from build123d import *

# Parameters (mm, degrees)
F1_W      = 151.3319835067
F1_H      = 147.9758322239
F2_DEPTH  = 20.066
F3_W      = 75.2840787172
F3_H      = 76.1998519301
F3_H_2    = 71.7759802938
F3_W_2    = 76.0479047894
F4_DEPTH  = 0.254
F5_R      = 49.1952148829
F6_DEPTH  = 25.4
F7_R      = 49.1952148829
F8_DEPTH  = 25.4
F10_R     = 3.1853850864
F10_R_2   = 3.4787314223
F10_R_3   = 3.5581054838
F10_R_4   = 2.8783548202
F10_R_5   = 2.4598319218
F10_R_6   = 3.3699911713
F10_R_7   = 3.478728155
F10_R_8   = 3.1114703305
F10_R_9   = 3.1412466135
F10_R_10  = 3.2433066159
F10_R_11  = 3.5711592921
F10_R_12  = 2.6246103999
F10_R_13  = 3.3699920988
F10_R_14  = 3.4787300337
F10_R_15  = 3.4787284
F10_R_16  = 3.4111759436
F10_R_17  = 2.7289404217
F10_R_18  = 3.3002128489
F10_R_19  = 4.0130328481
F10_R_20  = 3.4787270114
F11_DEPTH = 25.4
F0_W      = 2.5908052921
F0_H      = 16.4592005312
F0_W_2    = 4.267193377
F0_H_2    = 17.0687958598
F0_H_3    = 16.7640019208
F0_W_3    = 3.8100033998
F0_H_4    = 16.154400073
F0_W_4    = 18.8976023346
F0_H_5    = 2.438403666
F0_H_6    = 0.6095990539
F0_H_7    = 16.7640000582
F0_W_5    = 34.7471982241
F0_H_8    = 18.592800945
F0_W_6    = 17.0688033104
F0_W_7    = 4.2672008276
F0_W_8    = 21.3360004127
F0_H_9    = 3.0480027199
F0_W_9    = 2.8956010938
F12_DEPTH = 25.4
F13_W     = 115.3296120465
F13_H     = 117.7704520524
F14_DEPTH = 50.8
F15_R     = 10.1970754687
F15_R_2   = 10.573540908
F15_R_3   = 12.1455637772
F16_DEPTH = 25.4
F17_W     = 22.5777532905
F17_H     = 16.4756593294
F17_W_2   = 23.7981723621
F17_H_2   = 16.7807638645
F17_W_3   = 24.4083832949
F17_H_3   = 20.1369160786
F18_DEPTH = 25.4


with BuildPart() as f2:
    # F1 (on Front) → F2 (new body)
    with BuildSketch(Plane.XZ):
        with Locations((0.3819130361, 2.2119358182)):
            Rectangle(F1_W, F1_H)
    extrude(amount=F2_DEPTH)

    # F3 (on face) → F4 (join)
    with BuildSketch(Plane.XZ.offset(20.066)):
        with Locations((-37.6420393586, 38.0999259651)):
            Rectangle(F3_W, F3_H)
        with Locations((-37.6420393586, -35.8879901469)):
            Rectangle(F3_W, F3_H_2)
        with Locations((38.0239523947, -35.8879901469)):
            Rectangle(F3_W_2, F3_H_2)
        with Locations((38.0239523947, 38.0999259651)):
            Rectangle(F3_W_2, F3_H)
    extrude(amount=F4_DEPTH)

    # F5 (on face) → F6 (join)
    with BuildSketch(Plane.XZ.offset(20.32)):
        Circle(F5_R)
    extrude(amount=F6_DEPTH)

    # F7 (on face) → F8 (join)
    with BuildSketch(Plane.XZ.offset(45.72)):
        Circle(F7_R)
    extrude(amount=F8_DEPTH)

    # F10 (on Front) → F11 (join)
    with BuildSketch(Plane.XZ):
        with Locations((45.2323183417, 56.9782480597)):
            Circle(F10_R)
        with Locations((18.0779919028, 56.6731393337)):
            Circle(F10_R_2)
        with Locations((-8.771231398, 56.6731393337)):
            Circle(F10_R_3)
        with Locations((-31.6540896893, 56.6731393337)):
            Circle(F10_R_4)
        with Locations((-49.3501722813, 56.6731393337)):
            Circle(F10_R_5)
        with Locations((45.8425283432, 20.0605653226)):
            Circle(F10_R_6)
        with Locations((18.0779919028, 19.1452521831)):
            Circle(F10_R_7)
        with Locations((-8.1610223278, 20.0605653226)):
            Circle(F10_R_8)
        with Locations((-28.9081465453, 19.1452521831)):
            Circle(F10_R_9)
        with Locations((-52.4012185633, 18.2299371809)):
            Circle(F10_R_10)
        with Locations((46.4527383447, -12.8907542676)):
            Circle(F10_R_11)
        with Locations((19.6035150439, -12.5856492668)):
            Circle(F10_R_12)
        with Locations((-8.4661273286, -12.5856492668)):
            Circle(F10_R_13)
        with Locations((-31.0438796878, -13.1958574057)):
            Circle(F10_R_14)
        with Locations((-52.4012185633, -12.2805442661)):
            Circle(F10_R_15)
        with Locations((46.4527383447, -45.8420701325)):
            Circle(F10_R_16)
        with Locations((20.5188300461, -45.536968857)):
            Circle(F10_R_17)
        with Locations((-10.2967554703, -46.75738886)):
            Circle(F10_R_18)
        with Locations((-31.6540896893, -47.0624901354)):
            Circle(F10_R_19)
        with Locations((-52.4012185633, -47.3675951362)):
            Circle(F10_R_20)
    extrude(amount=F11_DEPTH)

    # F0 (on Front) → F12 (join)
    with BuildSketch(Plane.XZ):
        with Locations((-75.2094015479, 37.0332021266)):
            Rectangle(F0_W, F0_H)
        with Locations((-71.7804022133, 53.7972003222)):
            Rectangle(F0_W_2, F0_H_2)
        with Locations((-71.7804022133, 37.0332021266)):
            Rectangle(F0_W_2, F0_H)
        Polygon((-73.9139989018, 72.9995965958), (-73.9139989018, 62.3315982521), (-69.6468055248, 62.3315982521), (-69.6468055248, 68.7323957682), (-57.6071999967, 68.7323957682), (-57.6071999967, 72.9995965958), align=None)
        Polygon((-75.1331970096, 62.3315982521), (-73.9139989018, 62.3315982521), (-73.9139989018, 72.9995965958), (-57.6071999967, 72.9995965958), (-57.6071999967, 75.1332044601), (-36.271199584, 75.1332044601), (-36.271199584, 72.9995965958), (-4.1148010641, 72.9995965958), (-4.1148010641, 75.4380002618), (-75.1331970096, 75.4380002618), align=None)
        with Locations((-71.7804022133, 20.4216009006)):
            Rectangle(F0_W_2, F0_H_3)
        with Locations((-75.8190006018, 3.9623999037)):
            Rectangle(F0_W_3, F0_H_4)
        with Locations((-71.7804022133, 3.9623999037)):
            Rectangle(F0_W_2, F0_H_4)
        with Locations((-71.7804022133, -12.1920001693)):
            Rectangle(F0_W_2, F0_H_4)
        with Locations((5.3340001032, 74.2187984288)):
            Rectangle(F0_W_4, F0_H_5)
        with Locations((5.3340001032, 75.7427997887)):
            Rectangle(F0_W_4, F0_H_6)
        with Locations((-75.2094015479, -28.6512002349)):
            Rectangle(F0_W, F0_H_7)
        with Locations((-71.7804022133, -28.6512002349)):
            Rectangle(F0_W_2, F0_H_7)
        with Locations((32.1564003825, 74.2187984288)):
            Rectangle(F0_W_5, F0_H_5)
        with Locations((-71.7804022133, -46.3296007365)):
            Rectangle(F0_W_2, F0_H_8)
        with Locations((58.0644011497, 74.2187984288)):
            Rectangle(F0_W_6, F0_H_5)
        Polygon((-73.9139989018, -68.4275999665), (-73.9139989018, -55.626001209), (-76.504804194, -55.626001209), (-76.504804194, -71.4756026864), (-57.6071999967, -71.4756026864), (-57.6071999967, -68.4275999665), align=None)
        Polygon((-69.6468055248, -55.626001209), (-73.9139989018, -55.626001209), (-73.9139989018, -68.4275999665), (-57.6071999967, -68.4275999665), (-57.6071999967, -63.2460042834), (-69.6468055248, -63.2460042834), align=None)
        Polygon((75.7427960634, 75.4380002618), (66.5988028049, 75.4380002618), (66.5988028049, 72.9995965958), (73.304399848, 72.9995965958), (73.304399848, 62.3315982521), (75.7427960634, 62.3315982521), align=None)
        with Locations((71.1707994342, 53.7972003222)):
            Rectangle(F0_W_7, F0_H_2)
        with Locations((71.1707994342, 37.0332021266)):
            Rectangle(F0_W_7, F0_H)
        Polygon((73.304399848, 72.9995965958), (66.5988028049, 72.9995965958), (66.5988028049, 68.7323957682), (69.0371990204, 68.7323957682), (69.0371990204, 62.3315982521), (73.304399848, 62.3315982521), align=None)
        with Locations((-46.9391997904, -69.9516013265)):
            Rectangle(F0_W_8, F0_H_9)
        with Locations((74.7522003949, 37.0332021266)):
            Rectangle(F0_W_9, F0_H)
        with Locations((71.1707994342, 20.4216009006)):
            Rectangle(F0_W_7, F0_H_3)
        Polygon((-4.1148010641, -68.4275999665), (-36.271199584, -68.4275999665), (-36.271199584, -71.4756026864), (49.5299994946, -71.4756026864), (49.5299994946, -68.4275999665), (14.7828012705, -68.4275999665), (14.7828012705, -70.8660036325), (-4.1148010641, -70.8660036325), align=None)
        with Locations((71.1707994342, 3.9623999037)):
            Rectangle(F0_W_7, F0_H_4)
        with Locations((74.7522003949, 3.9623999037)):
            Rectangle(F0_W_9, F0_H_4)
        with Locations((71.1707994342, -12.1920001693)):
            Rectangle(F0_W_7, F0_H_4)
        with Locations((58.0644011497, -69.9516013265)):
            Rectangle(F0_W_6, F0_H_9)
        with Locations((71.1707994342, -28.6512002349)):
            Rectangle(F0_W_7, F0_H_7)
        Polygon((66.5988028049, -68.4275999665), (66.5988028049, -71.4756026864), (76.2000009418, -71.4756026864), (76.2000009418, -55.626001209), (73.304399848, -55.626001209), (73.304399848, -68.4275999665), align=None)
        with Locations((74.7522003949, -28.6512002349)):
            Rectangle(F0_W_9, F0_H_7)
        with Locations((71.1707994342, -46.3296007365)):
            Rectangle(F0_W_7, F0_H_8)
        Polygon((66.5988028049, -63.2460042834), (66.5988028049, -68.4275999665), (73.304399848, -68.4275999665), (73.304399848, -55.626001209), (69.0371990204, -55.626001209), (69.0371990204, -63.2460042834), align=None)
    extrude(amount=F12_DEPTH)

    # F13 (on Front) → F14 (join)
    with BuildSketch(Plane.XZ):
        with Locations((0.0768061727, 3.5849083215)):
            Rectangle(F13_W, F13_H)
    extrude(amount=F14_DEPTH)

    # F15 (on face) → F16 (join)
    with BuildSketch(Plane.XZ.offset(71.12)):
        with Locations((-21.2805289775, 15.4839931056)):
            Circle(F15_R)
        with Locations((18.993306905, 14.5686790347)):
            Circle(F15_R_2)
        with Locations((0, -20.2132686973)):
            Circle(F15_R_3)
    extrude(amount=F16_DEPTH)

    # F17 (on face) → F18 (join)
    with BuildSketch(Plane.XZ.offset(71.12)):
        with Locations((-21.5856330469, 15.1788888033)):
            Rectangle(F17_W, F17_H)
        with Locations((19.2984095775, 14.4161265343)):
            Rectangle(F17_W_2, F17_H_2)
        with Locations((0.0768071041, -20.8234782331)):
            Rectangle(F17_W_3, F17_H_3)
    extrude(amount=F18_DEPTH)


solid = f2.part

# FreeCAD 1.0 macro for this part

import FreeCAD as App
import Part
import Sketcher
Q = App.Units.Quantity

doc = App.newDocument("Part")
body = doc.addObject("PartDesign::Body", "Body")

# Sketch on XZ plane
sketch1 = doc.addObject("Sketcher::SketchObject", "Sketch")
body.addObject(sketch1)
sketch1.AttachmentSupport = (doc.XZ_Plane, [""])
sketch1.MapMode = "FlatFace"
sketch1.addGeometry([
    Part.LineSegment(App.Vector(-75.284079, 76.199852, 0), App.Vector(-75.284079, -71.77598, 0)),
    Part.LineSegment(App.Vector(-75.284079, -71.77598, 0), App.Vector(76.047905, -71.77598, 0)),
    Part.LineSegment(App.Vector(76.047905, -71.77598, 0), App.Vector(76.047905, 76.199852, 0)),
    Part.LineSegment(App.Vector(76.047905, 76.199852, 0), App.Vector(-75.284079, 76.199852, 0)),
], False)
sketch1.addConstraint([
    Sketcher.Constraint("Coincident", 0, 2, 1, 1),
    Sketcher.Constraint("Coincident", 1, 2, 2, 1),
    Sketcher.Constraint("Coincident", 2, 2, 3, 1),
    Sketcher.Constraint("Coincident", 3, 2, 0, 1),
    Sketcher.Constraint("Vertical", 0),
    Sketcher.Constraint("Horizontal", 1),
    Sketcher.Constraint("Vertical", 2),
    Sketcher.Constraint("Horizontal", 3),
    Sketcher.Constraint("DistanceX", 1, 1, 1, 2, 151.331984),
    Sketcher.Constraint("DistanceY", 0, 2, 0, 1, 147.975832),
    Sketcher.Constraint("DistanceX", 0, 2, -1, 1, 75.284079),
    Sketcher.Constraint("DistanceY", 0, 2, -1, 1, 71.77598),
])
pad1 = doc.addObject("PartDesign::Pad", "Pad")
body.addObject(pad1)
pad1.Profile = sketch1
pad1.Length = Q("0.79 in")

# Sketch on XZ plane
sketch2 = doc.addObject("Sketcher::SketchObject", "Sketch001")
body.addObject(sketch2)
sketch2.AttachmentSupport = (doc.XZ_Plane, [""])
sketch2.MapMode = "FlatFace"
sketch2.AttachmentOffset = App.Placement(App.Vector(0, 0, 0.79 * 25.4), App.Rotation())
sketch2.addGeometry([
    Part.LineSegment(App.Vector(-75.284079, 76.199852, 0), App.Vector(-75.284079, -71.77598, 0)),
    Part.LineSegment(App.Vector(-75.284079, -71.77598, 0), App.Vector(76.047905, -71.77598, 0)),
    Part.LineSegment(App.Vector(76.047905, -71.77598, 0), App.Vector(76.047905, 76.199852, 0)),
    Part.LineSegment(App.Vector(76.047905, 76.199852, 0), App.Vector(-75.284079, 76.199852, 0)),
], False)
sketch2.addConstraint([
    Sketcher.Constraint("Coincident", 0, 2, 1, 1),
    Sketcher.Constraint("Coincident", 1, 2, 2, 1),
    Sketcher.Constraint("Coincident", 2, 2, 3, 1),
    Sketcher.Constraint("Coincident", 3, 2, 0, 1),
    Sketcher.Constraint("Vertical", 0),
    Sketcher.Constraint("Horizontal", 1),
    Sketcher.Constraint("Vertical", 2),
    Sketcher.Constraint("Horizontal", 3),
    Sketcher.Constraint("DistanceX", 1, 1, 1, 2, 151.331984),
    Sketcher.Constraint("DistanceY", 0, 2, 0, 1, 147.975832),
    Sketcher.Constraint("DistanceX", 0, 2, -1, 1, 75.284079),
    Sketcher.Constraint("DistanceY", 0, 2, -1, 1, 71.77598),
])
pad2 = doc.addObject("PartDesign::Pad", "Pad001")
body.addObject(pad2)
pad2.Profile = sketch2
pad2.Length = Q("0.01 in")

# Sketch on XZ plane
sketch3 = doc.addObject("Sketcher::SketchObject", "Sketch002")
body.addObject(sketch3)
sketch3.AttachmentSupport = (doc.XZ_Plane, [""])
sketch3.MapMode = "FlatFace"
sketch3.AttachmentOffset = App.Placement(App.Vector(0, 0, 0.8 * 25.4), App.Rotation())
sketch3.addGeometry(Part.Circle(App.Vector(0, 0, 0), App.Vector(0, 0, 1), 49.195215), False)
sketch3.addConstraint([
    Sketcher.Constraint("Coincident", 0, 3, -1, 1),
    Sketcher.Constraint("Diameter", 0, 98.39043),
])
pad3 = doc.addObject("PartDesign::Pad", "Pad002")
body.addObject(pad3)
pad3.Profile = sketch3
pad3.Length = Q("1 in")

# Sketch on XZ plane
sketch4 = doc.addObject("Sketcher::SketchObject", "Sketch003")
body.addObject(sketch4)
sketch4.AttachmentSupport = (doc.XZ_Plane, [""])
sketch4.MapMode = "FlatFace"
sketch4.AttachmentOffset = App.Placement(App.Vector(0, 0, 1.8 * 25.4), App.Rotation())
sketch4.addGeometry(Part.Circle(App.Vector(0, 0, 0), App.Vector(0, 0, 1), 49.195215), False)
sketch4.addConstraint([
    Sketcher.Constraint("Coincident", 0, 3, -1, 1),
    Sketcher.Constraint("Diameter", 0, 98.39043),
])
pad4 = doc.addObject("PartDesign::Pad", "Pad003")
body.addObject(pad4)
pad4.Profile = sketch4
pad4.Length = Q("1 in")

# Sketch on XZ plane
sketch5 = doc.addObject("Sketcher::SketchObject", "Sketch004")
body.addObject(sketch5)
sketch5.AttachmentSupport = (doc.XZ_Plane, [""])
sketch5.MapMode = "FlatFace"
sketch5.addGeometry([
    Part.Circle(App.Vector(45.232318, 56.978248, 0), App.Vector(0, 0, 1), 3.185385),  # 0
    Part.Circle(App.Vector(18.077992, 56.673139, 0), App.Vector(0, 0, 1), 3.478731),  # 1
    Part.Circle(App.Vector(-8.771231, 56.673139, 0), App.Vector(0, 0, 1), 3.558105),  # 2
    Part.Circle(App.Vector(-31.65409, 56.673139, 0), App.Vector(0, 0, 1), 2.878355),  # 3
    Part.Circle(App.Vector(-49.350172, 56.673139, 0), App.Vector(0, 0, 1), 2.459832),  # 4
    Part.Circle(App.Vector(45.842528, 20.060565, 0), App.Vector(0, 0, 1), 3.369991),  # 5
    Part.Circle(App.Vector(18.077992, 19.145252, 0), App.Vector(0, 0, 1), 3.478728),  # 6
    Part.Circle(App.Vector(-8.161022, 20.060565, 0), App.Vector(0, 0, 1), 3.11147),  # 7
    Part.Circle(App.Vector(-28.908147, 19.145252, 0), App.Vector(0, 0, 1), 3.141247),  # 8
    Part.Circle(App.Vector(-52.401219, 18.229937, 0), App.Vector(0, 0, 1), 3.243307),  # 9
    Part.Circle(App.Vector(46.452738, -12.890754, 0), App.Vector(0, 0, 1), 3.571159),  # 10
    Part.Circle(App.Vector(19.603515, -12.585649, 0), App.Vector(0, 0, 1), 2.62461),  # 11
    Part.Circle(App.Vector(-8.466127, -12.585649, 0), App.Vector(0, 0, 1), 3.369992),  # 12
    Part.Circle(App.Vector(-31.04388, -13.195857, 0), App.Vector(0, 0, 1), 3.47873),  # 13
    Part.Circle(App.Vector(-52.401219, -12.280544, 0), App.Vector(0, 0, 1), 3.478728),  # 14
    Part.Circle(App.Vector(46.452738, -45.84207, 0), App.Vector(0, 0, 1), 3.411176),  # 15
    Part.Circle(App.Vector(20.51883, -45.536969, 0), App.Vector(0, 0, 1), 2.72894),  # 16
    Part.Circle(App.Vector(-10.296755, -46.757389, 0), App.Vector(0, 0, 1), 3.300213),  # 17
    Part.Circle(App.Vector(-31.65409, -47.06249, 0), App.Vector(0, 0, 1), 4.013033),  # 18
    Part.Circle(App.Vector(-52.401219, -47.367595, 0), App.Vector(0, 0, 1), 3.478727),  # 19
], False)
sketch5.addConstraint([
    Sketcher.Constraint("Equal", 5, 12),
    Sketcher.Constraint("Equal", 6, 13),
    Sketcher.Constraint("Equal", 13, 14),
    Sketcher.Constraint("Equal", 14, 19),
    Sketcher.Constraint("Horizontal", 1, 3, 2, 3),
    Sketcher.Constraint("Horizontal", 2, 3, 3, 3),
    Sketcher.Constraint("Horizontal", 3, 3, 4, 3),
    Sketcher.Constraint("Horizontal", 5, 3, 7, 3),
    Sketcher.Constraint("Horizontal", 6, 3, 8, 3),
    Sketcher.Constraint("Horizontal", 11, 3, 12, 3),
    Sketcher.Constraint("Vertical", 1, 3, 6, 3),
    Sketcher.Constraint("Vertical", 9, 3, 14, 3),
    Sketcher.Constraint("Vertical", 10, 3, 15, 3),
    Sketcher.Constraint("Vertical", 3, 3, 18, 3),
    Sketcher.Constraint("Vertical", 14, 3, 19, 3),
    Sketcher.Constraint("Diameter", 0, 6.37077),
    Sketcher.Constraint("Diameter", 2, 7.116211),
    Sketcher.Constraint("Diameter", 3, 5.75671),
    Sketcher.Constraint("Diameter", 7, 6.222941),
    Sketcher.Constraint("Diameter", 10, 7.142319),
    Sketcher.Constraint("Diameter", 11, 5.249221),
    Sketcher.Constraint("Diameter", 13, 6.95746),
    Sketcher.Constraint("Diameter", 15, 6.822352),
    Sketcher.Constraint("Diameter", 16, 5.457881),
    Sketcher.Constraint("Diameter", 1, 6.957463),
    Sketcher.Constraint("Diameter", 4, 4.919664),
    Sketcher.Constraint("Diameter", 5, 6.739982),
    Sketcher.Constraint("Diameter", 8, 6.282493),
    Sketcher.Constraint("Diameter", 9, 6.486613),
    Sketcher.Constraint("Diameter", 17, 6.600426),
    Sketcher.Constraint("Diameter", 18, 8.026066),
    Sketcher.Constraint("DistanceX", -1, 1, 0, 3, Q("1.7807999 in")),
    Sketcher.Constraint("DistanceX", 7, 3, -1, 1, Q("0.3213001 in")),
    Sketcher.Constraint("DistanceX", 13, 3, -1, 1, Q("1.2222 in")),
    Sketcher.Constraint("DistanceX", 3, 3, 2, 3, Q("0.9008999 in")),
    Sketcher.Constraint("DistanceY", 14, 3, 9, 3, Q("1.2012001 in")),
    Sketcher.Constraint("DistanceX", 4, 3, 5, 3, 95.192701),
    Sketcher.Constraint("DistanceY", 11, 3, 6, 3, 31.730901),
    Sketcher.Constraint("DistanceY", 15, 3, 16, 3, 0.305101),
    Sketcher.Constraint("DistanceY", 18, 3, 17, 3, 0.305101),
    Sketcher.Constraint("DistanceY", -1, 1, 0, 3, 56.978248),
    Sketcher.Constraint("DistanceX", -1, 1, 1, 3, 18.077992),
    Sketcher.Constraint("DistanceY", -1, 1, 1, 3, 56.673139),
    Sketcher.Constraint("DistanceX", 2, 3, -1, 1, 8.771231),
    Sketcher.Constraint("DistanceX", -1, 1, 5, 3, 45.842528),
    Sketcher.Constraint("DistanceX", 9, 3, -1, 1, 52.401219),
    Sketcher.Constraint("DistanceX", -1, 1, 10, 3, 46.452738),
    Sketcher.Constraint("DistanceY", 11, 3, -1, 1, 12.585649),
    Sketcher.Constraint("DistanceY", 15, 3, -1, 1, 45.84207),
    Sketcher.Constraint("DistanceX", -1, 1, 16, 3, 20.51883),
    Sketcher.Constraint("DistanceY", 17, 3, -1, 1, 46.757389),
    Sketcher.Constraint("DistanceX", 8, 3, 6, 3, 46.986138),
    Sketcher.Constraint("DistanceY", 9, 3, 7, 3, 1.830628),
    Sketcher.Constraint("DistanceY", 10, 3, 5, 3, 32.95132),
    Sketcher.Constraint("DistanceX", 8, 3, 11, 3, 48.511662),
    Sketcher.Constraint("DistanceX", 8, 3, 12, 3, 20.442019),
    Sketcher.Constraint("DistanceY", 13, 3, 12, 3, 0.610208),
    Sketcher.Constraint("DistanceX", 17, 3, 12, 3, 1.830628),
    Sketcher.Constraint("DistanceY", 19, 3, 14, 3, 35.087051),
    Sketcher.Constraint("DistanceY", -1, 1, 5, 3, 20.060565),
])
pad5 = doc.addObject("PartDesign::Pad", "Pad004")
body.addObject(pad5)
pad5.Profile = sketch5
pad5.Length = Q("1 in")

# Sketch on XZ plane
sketch6 = doc.addObject("Sketcher::SketchObject", "Sketch005")
body.addObject(sketch6)
sketch6.AttachmentSupport = (doc.XZ_Plane, [""])
sketch6.MapMode = "FlatFace"
sketch6.addGeometry([
    Part.LineSegment(App.Vector(76.200001, -55.626001, 0), App.Vector(73.3044, -55.626001, 0)),  # 0
    Part.LineSegment(App.Vector(73.3044, -55.626001, 0), App.Vector(73.3044, -37.0332, 0)),  # 1
    Part.LineSegment(App.Vector(73.3044, -37.0332, 0), App.Vector(76.200001, -37.0332, 0)),  # 2
    Part.LineSegment(App.Vector(76.200001, -37.0332, 0), App.Vector(76.200001, -20.2692, 0)),  # 3
    Part.LineSegment(App.Vector(76.200001, -20.2692, 0), App.Vector(73.3044, -20.2692, 0)),  # 4
    Part.LineSegment(App.Vector(73.3044, -20.2692, 0), App.Vector(73.3044, -4.1148, 0)),  # 5
    Part.LineSegment(App.Vector(73.3044, -4.1148, 0), App.Vector(76.200001, -4.1148, 0)),  # 6
    Part.LineSegment(App.Vector(76.200001, -4.1148, 0), App.Vector(76.200001, 12.0396, 0)),  # 7
    Part.LineSegment(App.Vector(76.200001, 12.0396, 0), App.Vector(73.3044, 12.0396, 0)),  # 8
    Part.LineSegment(App.Vector(73.3044, 12.0396, 0), App.Vector(73.3044, 28.803602, 0)),  # 9
    Part.LineSegment(App.Vector(73.3044, 28.803602, 0), App.Vector(76.200001, 28.803602, 0)),  # 10
    Part.LineSegment(App.Vector(76.200001, 28.803602, 0), App.Vector(76.200001, 45.262802, 0)),  # 11
    Part.LineSegment(App.Vector(76.200001, 45.262802, 0), App.Vector(73.3044, 45.262802, 0)),  # 12
    Part.LineSegment(App.Vector(73.3044, 45.262802, 0), App.Vector(73.3044, 62.331598, 0)),  # 13
    Part.LineSegment(App.Vector(73.3044, 62.331598, 0), App.Vector(75.742796, 62.331598, 0)),  # 14
    Part.LineSegment(App.Vector(75.742796, 62.331598, 0), App.Vector(75.742796, 75.438, 0)),  # 15
    Part.LineSegment(App.Vector(75.742796, 75.438, 0), App.Vector(14.782801, 75.438, 0)),  # 16
    Part.LineSegment(App.Vector(14.782801, 75.438, 0), App.Vector(14.782801, 76.047599, 0)),  # 17
    Part.LineSegment(App.Vector(14.782801, 76.047599, 0), App.Vector(-4.114801, 76.047599, 0)),  # 18
    Part.LineSegment(App.Vector(-4.114801, 76.047599, 0), App.Vector(-4.114801, 75.438, 0)),  # 19
    Part.LineSegment(App.Vector(-4.114801, 75.438, 0), App.Vector(-75.133197, 75.438, 0)),  # 20
    Part.LineSegment(App.Vector(-75.133197, 75.438, 0), App.Vector(-75.133197, 62.331598, 0)),  # 21
    Part.LineSegment(App.Vector(-75.133197, 62.331598, 0), App.Vector(-73.913999, 62.331598, 0)),  # 22
    Part.LineSegment(App.Vector(-73.913999, 62.331598, 0), App.Vector(-73.913999, 45.262802, 0)),  # 23
    Part.LineSegment(App.Vector(-73.913999, 45.262802, 0), App.Vector(-76.504804, 45.262802, 0)),  # 24
    Part.LineSegment(App.Vector(-76.504804, 45.262802, 0), App.Vector(-76.504804, 28.803602, 0)),  # 25
    Part.LineSegment(App.Vector(-76.504804, 28.803602, 0), App.Vector(-73.913999, 28.803602, 0)),  # 26
    Part.LineSegment(App.Vector(-73.913999, 28.803602, 0), App.Vector(-73.913999, 12.0396, 0)),  # 27
    Part.LineSegment(App.Vector(-73.913999, 12.0396, 0), App.Vector(-77.724002, 12.0396, 0)),  # 28
    Part.LineSegment(App.Vector(-77.724002, 12.0396, 0), App.Vector(-77.724002, -4.1148, 0)),  # 29
    Part.LineSegment(App.Vector(-77.724002, -4.1148, 0), App.Vector(-73.913999, -4.1148, 0)),  # 30
    Part.LineSegment(App.Vector(-73.913999, -4.1148, 0), App.Vector(-73.913999, -20.2692, 0)),  # 31
    Part.LineSegment(App.Vector(-73.913999, -20.2692, 0), App.Vector(-76.504804, -20.2692, 0)),  # 32
    Part.LineSegment(App.Vector(-76.504804, -20.2692, 0), App.Vector(-76.504804, -37.0332, 0)),  # 33
    Part.LineSegment(App.Vector(-76.504804, -37.0332, 0), App.Vector(-73.913999, -37.0332, 0)),  # 34
    Part.LineSegment(App.Vector(-73.913999, -37.0332, 0), App.Vector(-73.913999, -55.626001, 0)),  # 35
    Part.LineSegment(App.Vector(-73.913999, -55.626001, 0), App.Vector(-76.504804, -55.626001, 0)),  # 36
    Part.LineSegment(App.Vector(-76.504804, -55.626001, 0), App.Vector(-76.504804, -71.475603, 0)),  # 37
    Part.LineSegment(App.Vector(-76.504804, -71.475603, 0), App.Vector(76.200001, -71.475603, 0)),  # 38
    Part.LineSegment(App.Vector(76.200001, -71.475603, 0), App.Vector(76.200001, -55.626001, 0)),  # 39
    Part.LineSegment(App.Vector(69.037199, 68.732396, 0), App.Vector(69.037199, -63.246004, 0)),  # 40
    Part.LineSegment(App.Vector(69.037199, -63.246004, 0), App.Vector(66.598803, -63.246004, 0)),  # 41
    Part.LineSegment(App.Vector(66.598803, -63.246004, 0), App.Vector(66.598803, -68.4276, 0)),  # 42
    Part.LineSegment(App.Vector(66.598803, -68.4276, 0), App.Vector(14.782801, -68.4276, 0)),  # 43
    Part.LineSegment(App.Vector(14.782801, -68.4276, 0), App.Vector(14.782801, -70.866004, 0)),  # 44
    Part.LineSegment(App.Vector(14.782801, -70.866004, 0), App.Vector(-4.114801, -70.866004, 0)),  # 45
    Part.LineSegment(App.Vector(-4.114801, -70.866004, 0), App.Vector(-4.114801, -68.4276, 0)),  # 46
    Part.LineSegment(App.Vector(-4.114801, -68.4276, 0), App.Vector(-57.6072, -68.4276, 0)),  # 47
    Part.LineSegment(App.Vector(-57.6072, -68.4276, 0), App.Vector(-57.6072, -63.246004, 0)),  # 48
    Part.LineSegment(App.Vector(-57.6072, -63.246004, 0), App.Vector(-69.646806, -63.246004, 0)),  # 49
    Part.LineSegment(App.Vector(-69.646806, -63.246004, 0), App.Vector(-69.646806, 68.732396, 0)),  # 50
    Part.LineSegment(App.Vector(-69.646806, 68.732396, 0), App.Vector(-57.6072, 68.732396, 0)),  # 51
    Part.LineSegment(App.Vector(-57.6072, 68.732396, 0), App.Vector(-57.6072, 75.133204, 0)),  # 52
    Part.LineSegment(App.Vector(-57.6072, 75.133204, 0), App.Vector(-36.2712, 75.133204, 0)),  # 53
    Part.LineSegment(App.Vector(-36.2712, 75.133204, 0), App.Vector(-36.2712, 72.999597, 0)),  # 54
    Part.LineSegment(App.Vector(-36.2712, 72.999597, 0), App.Vector(66.598803, 72.999597, 0)),  # 55
    Part.LineSegment(App.Vector(66.598803, 72.999597, 0), App.Vector(66.598803, 68.732396, 0)),  # 56
    Part.LineSegment(App.Vector(66.598803, 68.732396, 0), App.Vector(69.037199, 68.732396, 0)),  # 57
], False)
sketch6.addConstraint([
    Sketcher.Constraint("Coincident", 0, 2, 1, 1),
    Sketcher.Constraint("Coincident", 1, 2, 2, 1),
    Sketcher.Constraint("Coincident", 2, 2, 3, 1),
    Sketcher.Constraint("Coincident", 3, 2, 4, 1),
    Sketcher.Constraint("Coincident", 4, 2, 5, 1),
    Sketcher.Constraint("Coincident", 5, 2, 6, 1),
    Sketcher.Constraint("Coincident", 6, 2, 7, 1),
    Sketcher.Constraint("Coincident", 7, 2, 8, 1),
    Sketcher.Constraint("Coincident", 8, 2, 9, 1),
    Sketcher.Constraint("Coincident", 9, 2, 10, 1),
    Sketcher.Constraint("Coincident", 10, 2, 11, 1),
    Sketcher.Constraint("Coincident", 11, 2, 12, 1),
    Sketcher.Constraint("Coincident", 12, 2, 13, 1),
    Sketcher.Constraint("Coincident", 13, 2, 14, 1),
    Sketcher.Constraint("Coincident", 14, 2, 15, 1),
    Sketcher.Constraint("Coincident", 15, 2, 16, 1),
    Sketcher.Constraint("Coincident", 16, 2, 17, 1),
    Sketcher.Constraint("Coincident", 17, 2, 18, 1),
    Sketcher.Constraint("Coincident", 18, 2, 19, 1),
    Sketcher.Constraint("Coincident", 19, 2, 20, 1),
    Sketcher.Constraint("Coincident", 20, 2, 21, 1),
    Sketcher.Constraint("Coincident", 21, 2, 22, 1),
    Sketcher.Constraint("Coincident", 22, 2, 23, 1),
    Sketcher.Constraint("Coincident", 23, 2, 24, 1),
    Sketcher.Constraint("Coincident", 24, 2, 25, 1),
    Sketcher.Constraint("Coincident", 25, 2, 26, 1),
    Sketcher.Constraint("Coincident", 26, 2, 27, 1),
    Sketcher.Constraint("Coincident", 27, 2, 28, 1),
    Sketcher.Constraint("Coincident", 28, 2, 29, 1),
    Sketcher.Constraint("Coincident", 29, 2, 30, 1),
    Sketcher.Constraint("Coincident", 30, 2, 31, 1),
    Sketcher.Constraint("Coincident", 31, 2, 32, 1),
    Sketcher.Constraint("Coincident", 32, 2, 33, 1),
    Sketcher.Constraint("Coincident", 33, 2, 34, 1),
    Sketcher.Constraint("Coincident", 34, 2, 35, 1),
    Sketcher.Constraint("Coincident", 35, 2, 36, 1),
    Sketcher.Constraint("Coincident", 36, 2, 37, 1),
    Sketcher.Constraint("Coincident", 37, 2, 38, 1),
    Sketcher.Constraint("Coincident", 38, 2, 39, 1),
    Sketcher.Constraint("Coincident", 39, 2, 0, 1),
    Sketcher.Constraint("Coincident", 40, 2, 41, 1),
    Sketcher.Constraint("Coincident", 41, 2, 42, 1),
    Sketcher.Constraint("Coincident", 42, 2, 43, 1),
    Sketcher.Constraint("Coincident", 43, 2, 44, 1),
    Sketcher.Constraint("Coincident", 44, 2, 45, 1),
    Sketcher.Constraint("Coincident", 45, 2, 46, 1),
    Sketcher.Constraint("Coincident", 46, 2, 47, 1),
    Sketcher.Constraint("Coincident", 47, 2, 48, 1),
    Sketcher.Constraint("Coincident", 48, 2, 49, 1),
    Sketcher.Constraint("Coincident", 49, 2, 50, 1),
    Sketcher.Constraint("Coincident", 50, 2, 51, 1),
    Sketcher.Constraint("Coincident", 51, 2, 52, 1),
    Sketcher.Constraint("Coincident", 52, 2, 53, 1),
    Sketcher.Constraint("Coincident", 53, 2, 54, 1),
    Sketcher.Constraint("Coincident", 54, 2, 55, 1),
    Sketcher.Constraint("Coincident", 55, 2, 56, 1),
    Sketcher.Constraint("Coincident", 56, 2, 57, 1),
    Sketcher.Constraint("Coincident", 57, 2, 40, 1),
    Sketcher.Constraint("Horizontal", 0),
    Sketcher.Constraint("Vertical", 1),
    Sketcher.Constraint("Horizontal", 2),
    Sketcher.Constraint("Vertical", 3),
    Sketcher.Constraint("Horizontal", 4),
    Sketcher.Constraint("Vertical", 5),
    Sketcher.Constraint("Horizontal", 6),
    Sketcher.Constraint("Vertical", 7),
    Sketcher.Constraint("Horizontal", 8),
    Sketcher.Constraint("Vertical", 9),
    Sketcher.Constraint("Horizontal", 10),
    Sketcher.Constraint("Vertical", 11),
    Sketcher.Constraint("Horizontal", 12),
    Sketcher.Constraint("Vertical", 13),
    Sketcher.Constraint("Horizontal", 14),
    Sketcher.Constraint("Vertical", 15),
    Sketcher.Constraint("Horizontal", 16),
    Sketcher.Constraint("Vertical", 17),
    Sketcher.Constraint("Horizontal", 18),
    Sketcher.Constraint("Vertical", 19),
    Sketcher.Constraint("Horizontal", 20),
    Sketcher.Constraint("Vertical", 21),
    Sketcher.Constraint("Horizontal", 22),
    Sketcher.Constraint("Vertical", 23),
    Sketcher.Constraint("Horizontal", 24),
    Sketcher.Constraint("Vertical", 25),
    Sketcher.Constraint("Horizontal", 26),
    Sketcher.Constraint("Vertical", 27),
    Sketcher.Constraint("Horizontal", 28),
    Sketcher.Constraint("Vertical", 29),
    Sketcher.Constraint("Horizontal", 30),
    Sketcher.Constraint("Vertical", 31),
    Sketcher.Constraint("Horizontal", 32),
    Sketcher.Constraint("Vertical", 33),
    Sketcher.Constraint("Horizontal", 34),
    Sketcher.Constraint("Vertical", 35),
    Sketcher.Constraint("Horizontal", 36),
    Sketcher.Constraint("Vertical", 37),
    Sketcher.Constraint("Horizontal", 38),
    Sketcher.Constraint("Vertical", 39),
    Sketcher.Constraint("Vertical", 40),
    Sketcher.Constraint("Horizontal", 41),
    Sketcher.Constraint("Vertical", 42),
    Sketcher.Constraint("Horizontal", 43),
    Sketcher.Constraint("Vertical", 44),
    Sketcher.Constraint("Horizontal", 45),
    Sketcher.Constraint("Vertical", 46),
    Sketcher.Constraint("Horizontal", 47),
    Sketcher.Constraint("Vertical", 48),
    Sketcher.Constraint("Horizontal", 49),
    Sketcher.Constraint("Vertical", 50),
    Sketcher.Constraint("Horizontal", 51),
    Sketcher.Constraint("Vertical", 52),
    Sketcher.Constraint("Horizontal", 53),
    Sketcher.Constraint("Vertical", 54),
    Sketcher.Constraint("Horizontal", 55),
    Sketcher.Constraint("Vertical", 56),
    Sketcher.Constraint("Horizontal", 57),
    Sketcher.Constraint("Horizontal", 16, 2, 19, 2),
    Sketcher.Constraint("Horizontal", 14, 2, 21, 2),
    Sketcher.Constraint("Horizontal", 12, 2, 23, 2),
    Sketcher.Constraint("Horizontal", 10, 2, 25, 2),
    Sketcher.Constraint("Horizontal", 8, 2, 27, 2),
    Sketcher.Constraint("Horizontal", 6, 2, 29, 2),
    Sketcher.Constraint("Horizontal", 4, 2, 31, 2),
    Sketcher.Constraint("Horizontal", 2, 2, 33, 2),
    Sketcher.Constraint("Horizontal", 0, 2, 35, 2),
    Sketcher.Constraint("Horizontal", 43, 2, 46, 2),
    Sketcher.Constraint("Horizontal", 41, 2, 48, 2),
    Sketcher.Constraint("Horizontal", 51, 2, 56, 2),
    Sketcher.Constraint("Vertical", 1, 2, 4, 2),
    Sketcher.Constraint("Vertical", 3, 2, 6, 2),
    Sketcher.Constraint("Vertical", 5, 2, 8, 2),
    Sketcher.Constraint("Vertical", 7, 2, 10, 2),
    Sketcher.Constraint("Vertical", 9, 2, 12, 2),
    Sketcher.Constraint("Vertical", 23, 2, 26, 2),
    Sketcher.Constraint("Vertical", 27, 2, 30, 2),
    Sketcher.Constraint("Vertical", 25, 2, 32, 2),
    Sketcher.Constraint("Vertical", 31, 2, 34, 2),
    Sketcher.Constraint("Vertical", 33, 2, 36, 2),
    Sketcher.Constraint("Vertical", 11, 2, 38, 2),
    Sketcher.Constraint("Vertical", 17, 2, 43, 2),
    Sketcher.Constraint("Vertical", 19, 2, 45, 2),
    Sketcher.Constraint("Vertical", 48, 2, 51, 2),
    Sketcher.Constraint("Vertical", 42, 2, 55, 2),
    Sketcher.Constraint("Equal", 14, 41),
    Sketcher.Constraint("Equal", 5, 7),
    Sketcher.Constraint("Equal", 3, 9),
    Sketcher.Constraint("DistanceX", -1, 1, 2, 2, Q("3 in")),
    Sketcher.Constraint("DistanceX", 28, 2, 28, 1, Q("0.1500001 in")),
    Sketcher.Constraint("DistanceX", 43, 2, 43, 1, Q("2.0400001 in")),
    Sketcher.Constraint("DistanceX", 53, 1, 53, 2, Q("0.84 in")),
    Sketcher.Constraint("DistanceX", 55, 1, 55, 2, Q("4.0500001 in")),
    Sketcher.Constraint("DistanceY", 3, 1, 3, 2, Q("0.66 in")),
    Sketcher.Constraint("DistanceY", 40, 2, 0, 2, Q("0.3000001 in")),
    Sketcher.Constraint("DistanceY", 44, 2, 41, 2, Q("0.3 in")),
    Sketcher.Constraint("DistanceX", 0, 2, 0, 1, Q("0.114 in")),
    Sketcher.Constraint("DistanceX", 14, 1, 14, 2, Q("0.0959999 in")),
    Sketcher.Constraint("DistanceX", 18, 2, 18, 1, Q("0.7440001 in")),
    Sketcher.Constraint("DistanceX", 20, 2, 20, 1, Q("2.7959998 in")),
    Sketcher.Constraint("DistanceX", 22, 1, 22, 2, Q("0.0479999 in")),
    Sketcher.Constraint("DistanceY", 1, 1, 1, 2, Q("0.732 in")),
    Sketcher.Constraint("DistanceY", 5, 1, 5, 2, Q("0.636 in")),
    Sketcher.Constraint("DistanceY", 11, 1, 11, 2, Q("0.648 in")),
    Sketcher.Constraint("DistanceY", 13, 1, 13, 2, Q("0.6719998 in")),
    Sketcher.Constraint("DistanceY", 15, 1, 15, 2, Q("0.5160001 in")),
    Sketcher.Constraint("DistanceY", 17, 1, 17, 2, Q("0.024 in")),
    Sketcher.Constraint("DistanceY", 37, 2, 37, 1, Q("0.6240001 in")),
    Sketcher.Constraint("DistanceY", 40, 2, 40, 1, Q("5.196 in")),
    Sketcher.Constraint("DistanceY", 42, 2, 42, 1, Q("0.2039998 in")),
    Sketcher.Constraint("DistanceY", 56, 2, 56, 1, Q("0.168 in")),
    Sketcher.Constraint("DistanceY", 0, 2, -1, 1, Q("2.19 in")),
    Sketcher.Constraint("DistanceX", 22, 2, -1, 1, Q("2.91 in")),
    Sketcher.Constraint("DistanceX", 24, 2, 19, 2, Q("2.8500001 in")),
    Sketcher.Constraint("DistanceX", 36, 2, 49, 2, Q("0.2699999 in")),
    Sketcher.Constraint("DistanceY", -1, 1, 52, 2, Q("2.9580002 in")),
])
pad6 = doc.addObject("PartDesign::Pad", "Pad005")
body.addObject(pad6)
pad6.Profile = sketch6
pad6.Length = Q("1 in")

# Sketch on XZ plane
sketch7 = doc.addObject("Sketcher::SketchObject", "Sketch006")
body.addObject(sketch7)
sketch7.AttachmentSupport = (doc.XZ_Plane, [""])
sketch7.MapMode = "FlatFace"
sketch7.addGeometry([
    Part.LineSegment(App.Vector(-57.588, 62.470134, 0), App.Vector(-57.588, -55.300318, 0)),
    Part.LineSegment(App.Vector(-57.588, -55.300318, 0), App.Vector(57.741612, -55.300318, 0)),
    Part.LineSegment(App.Vector(57.741612, -55.300318, 0), App.Vector(57.741612, 62.470134, 0)),
    Part.LineSegment(App.Vector(57.741612, 62.470134, 0), App.Vector(-57.588, 62.470134, 0)),
], False)
sketch7.addConstraint([
    Sketcher.Constraint("Coincident", 0, 2, 1, 1),
    Sketcher.Constraint("Coincident", 1, 2, 2, 1),
    Sketcher.Constraint("Coincident", 2, 2, 3, 1),
    Sketcher.Constraint("Coincident", 3, 2, 0, 1),
    Sketcher.Constraint("Vertical", 0),
    Sketcher.Constraint("Horizontal", 1),
    Sketcher.Constraint("Vertical", 2),
    Sketcher.Constraint("Horizontal", 3),
    Sketcher.Constraint("DistanceX", 0, 2, -1, 1, 57.588),
    Sketcher.Constraint("DistanceX", 1, 1, 1, 2, 115.329612),
    Sketcher.Constraint("DistanceY", 0, 2, 0, 1, 117.770452),
    Sketcher.Constraint("DistanceY", 0, 2, -1, 1, 55.300318),
])
pad7 = doc.addObject("PartDesign::Pad", "Pad006")
body.addObject(pad7)
pad7.Profile = sketch7
pad7.Length = Q("2 in")

# Sketch on XZ plane
sketch8 = doc.addObject("Sketcher::SketchObject", "Sketch007")
body.addObject(sketch8)
sketch8.AttachmentSupport = (doc.XZ_Plane, [""])
sketch8.MapMode = "FlatFace"
sketch8.AttachmentOffset = App.Placement(App.Vector(0, 0, 2.8 * 25.4), App.Rotation())
sketch8.addGeometry([
    Part.Circle(App.Vector(-21.280529, 15.483993, 0), App.Vector(0, 0, 1), 10.197075),
    Part.Circle(App.Vector(18.993307, 14.568679, 0), App.Vector(0, 0, 1), 10.573541),
    Part.Circle(App.Vector(0, -20.213269, 0), App.Vector(0, 0, 1), 12.145564),
], False)
sketch8.addConstraint([
    Sketcher.Constraint("PointOnObject", 2, 3, -2),
    Sketcher.Constraint("Diameter", 0, 20.394151),
    Sketcher.Constraint("Diameter", 1, 21.147082),
    Sketcher.Constraint("Diameter", 2, 24.291128),
    Sketcher.Constraint("DistanceX", 0, 3, -1, 1, 21.280529),
    Sketcher.Constraint("DistanceY", -1, 1, 1, 3, 14.568679),
    Sketcher.Constraint("DistanceY", 2, 3, -1, 1, 20.213269),
    Sketcher.Constraint("DistanceY", 2, 3, 0, 3, 35.697262),
    Sketcher.Constraint("DistanceX", -1, 1, 1, 3, 18.993307),
])
pad8 = doc.addObject("PartDesign::Pad", "Pad007")
body.addObject(pad8)
pad8.Profile = sketch8
pad8.Length = Q("1 in")

# Sketch on XZ plane
sketch9 = doc.addObject("Sketcher::SketchObject", "Sketch008")
body.addObject(sketch9)
sketch9.AttachmentSupport = (doc.XZ_Plane, [""])
sketch9.MapMode = "FlatFace"
sketch9.AttachmentOffset = App.Placement(App.Vector(0, 0, 2.8 * 25.4), App.Rotation())
sketch9.addGeometry([
    Part.LineSegment(App.Vector(-32.87451, 23.416718, 0), App.Vector(-32.87451, 6.941059, 0)),  # 0
    Part.LineSegment(App.Vector(-32.87451, 6.941059, 0), App.Vector(-10.296756, 6.941059, 0)),  # 1
    Part.LineSegment(App.Vector(-10.296756, 6.941059, 0), App.Vector(-10.296756, 23.416718, 0)),  # 2
    Part.LineSegment(App.Vector(-10.296756, 23.416718, 0), App.Vector(-32.87451, 23.416718, 0)),  # 3
    Part.LineSegment(App.Vector(7.399323, 22.806508, 0), App.Vector(7.399323, 6.025745, 0)),  # 4
    Part.LineSegment(App.Vector(7.399323, 6.025745, 0), App.Vector(31.197496, 6.025745, 0)),  # 5
    Part.LineSegment(App.Vector(31.197496, 6.025745, 0), App.Vector(31.197496, 22.806508, 0)),  # 6
    Part.LineSegment(App.Vector(31.197496, 22.806508, 0), App.Vector(7.399323, 22.806508, 0)),  # 7
    Part.LineSegment(App.Vector(-12.127385, -10.75502, 0), App.Vector(-12.127385, -30.891936, 0)),  # 8
    Part.LineSegment(App.Vector(-12.127385, -30.891936, 0), App.Vector(12.280999, -30.891936, 0)),  # 9
    Part.LineSegment(App.Vector(12.280999, -30.891936, 0), App.Vector(12.280999, -10.75502, 0)),  # 10
    Part.LineSegment(App.Vector(12.280999, -10.75502, 0), App.Vector(-12.127385, -10.75502, 0)),  # 11
], False)
sketch9.addConstraint([
    Sketcher.Constraint("Coincident", 0, 2, 1, 1),
    Sketcher.Constraint("Coincident", 1, 2, 2, 1),
    Sketcher.Constraint("Coincident", 2, 2, 3, 1),
    Sketcher.Constraint("Coincident", 3, 2, 0, 1),
    Sketcher.Constraint("Coincident", 4, 2, 5, 1),
    Sketcher.Constraint("Coincident", 5, 2, 6, 1),
    Sketcher.Constraint("Coincident", 6, 2, 7, 1),
    Sketcher.Constraint("Coincident", 7, 2, 4, 1),
    Sketcher.Constraint("Coincident", 8, 2, 9, 1),
    Sketcher.Constraint("Coincident", 9, 2, 10, 1),
    Sketcher.Constraint("Coincident", 10, 2, 11, 1),
    Sketcher.Constraint("Coincident", 11, 2, 8, 1),
    Sketcher.Constraint("Vertical", 0),
    Sketcher.Constraint("Horizontal", 1),
    Sketcher.Constraint("Vertical", 2),
    Sketcher.Constraint("Horizontal", 3),
    Sketcher.Constraint("Vertical", 4),
    Sketcher.Constraint("Horizontal", 5),
    Sketcher.Constraint("Vertical", 6),
    Sketcher.Constraint("Horizontal", 7),
    Sketcher.Constraint("Vertical", 8),
    Sketcher.Constraint("Horizontal", 9),
    Sketcher.Constraint("Vertical", 10),
    Sketcher.Constraint("Horizontal", 11),
    Sketcher.Constraint("DistanceY", 0, 2, 0, 1, 16.475659),
    Sketcher.Constraint("DistanceX", -1, 1, 9, 2, 12.280999),
    Sketcher.Constraint("DistanceX", 1, 1, 1, 2, 22.577753),
    Sketcher.Constraint("DistanceX", 5, 1, 5, 2, 23.798172),
    Sketcher.Constraint("DistanceX", 9, 1, 9, 2, 24.408383),
    Sketcher.Constraint("DistanceY", 4, 2, 4, 1, 16.780764),
    Sketcher.Constraint("DistanceY", 8, 2, 8, 1, 20.136916),
    Sketcher.Constraint("DistanceX", 0, 2, -1, 1, 32.87451),
    Sketcher.Constraint("DistanceY", -1, 1, 0, 2, 6.941059),
    Sketcher.Constraint("DistanceY", -1, 1, 6, 2, 22.806508),
    Sketcher.Constraint("DistanceY", 10, 2, -1, 1, 10.75502),
    Sketcher.Constraint("DistanceX", 1, 2, 4, 2, 17.69608),
])
pad9 = doc.addObject("PartDesign::Pad", "Pad008")
body.addObject(pad9)
pad9.Profile = sketch9
pad9.Length = Q("1 in")

doc.recompute()
